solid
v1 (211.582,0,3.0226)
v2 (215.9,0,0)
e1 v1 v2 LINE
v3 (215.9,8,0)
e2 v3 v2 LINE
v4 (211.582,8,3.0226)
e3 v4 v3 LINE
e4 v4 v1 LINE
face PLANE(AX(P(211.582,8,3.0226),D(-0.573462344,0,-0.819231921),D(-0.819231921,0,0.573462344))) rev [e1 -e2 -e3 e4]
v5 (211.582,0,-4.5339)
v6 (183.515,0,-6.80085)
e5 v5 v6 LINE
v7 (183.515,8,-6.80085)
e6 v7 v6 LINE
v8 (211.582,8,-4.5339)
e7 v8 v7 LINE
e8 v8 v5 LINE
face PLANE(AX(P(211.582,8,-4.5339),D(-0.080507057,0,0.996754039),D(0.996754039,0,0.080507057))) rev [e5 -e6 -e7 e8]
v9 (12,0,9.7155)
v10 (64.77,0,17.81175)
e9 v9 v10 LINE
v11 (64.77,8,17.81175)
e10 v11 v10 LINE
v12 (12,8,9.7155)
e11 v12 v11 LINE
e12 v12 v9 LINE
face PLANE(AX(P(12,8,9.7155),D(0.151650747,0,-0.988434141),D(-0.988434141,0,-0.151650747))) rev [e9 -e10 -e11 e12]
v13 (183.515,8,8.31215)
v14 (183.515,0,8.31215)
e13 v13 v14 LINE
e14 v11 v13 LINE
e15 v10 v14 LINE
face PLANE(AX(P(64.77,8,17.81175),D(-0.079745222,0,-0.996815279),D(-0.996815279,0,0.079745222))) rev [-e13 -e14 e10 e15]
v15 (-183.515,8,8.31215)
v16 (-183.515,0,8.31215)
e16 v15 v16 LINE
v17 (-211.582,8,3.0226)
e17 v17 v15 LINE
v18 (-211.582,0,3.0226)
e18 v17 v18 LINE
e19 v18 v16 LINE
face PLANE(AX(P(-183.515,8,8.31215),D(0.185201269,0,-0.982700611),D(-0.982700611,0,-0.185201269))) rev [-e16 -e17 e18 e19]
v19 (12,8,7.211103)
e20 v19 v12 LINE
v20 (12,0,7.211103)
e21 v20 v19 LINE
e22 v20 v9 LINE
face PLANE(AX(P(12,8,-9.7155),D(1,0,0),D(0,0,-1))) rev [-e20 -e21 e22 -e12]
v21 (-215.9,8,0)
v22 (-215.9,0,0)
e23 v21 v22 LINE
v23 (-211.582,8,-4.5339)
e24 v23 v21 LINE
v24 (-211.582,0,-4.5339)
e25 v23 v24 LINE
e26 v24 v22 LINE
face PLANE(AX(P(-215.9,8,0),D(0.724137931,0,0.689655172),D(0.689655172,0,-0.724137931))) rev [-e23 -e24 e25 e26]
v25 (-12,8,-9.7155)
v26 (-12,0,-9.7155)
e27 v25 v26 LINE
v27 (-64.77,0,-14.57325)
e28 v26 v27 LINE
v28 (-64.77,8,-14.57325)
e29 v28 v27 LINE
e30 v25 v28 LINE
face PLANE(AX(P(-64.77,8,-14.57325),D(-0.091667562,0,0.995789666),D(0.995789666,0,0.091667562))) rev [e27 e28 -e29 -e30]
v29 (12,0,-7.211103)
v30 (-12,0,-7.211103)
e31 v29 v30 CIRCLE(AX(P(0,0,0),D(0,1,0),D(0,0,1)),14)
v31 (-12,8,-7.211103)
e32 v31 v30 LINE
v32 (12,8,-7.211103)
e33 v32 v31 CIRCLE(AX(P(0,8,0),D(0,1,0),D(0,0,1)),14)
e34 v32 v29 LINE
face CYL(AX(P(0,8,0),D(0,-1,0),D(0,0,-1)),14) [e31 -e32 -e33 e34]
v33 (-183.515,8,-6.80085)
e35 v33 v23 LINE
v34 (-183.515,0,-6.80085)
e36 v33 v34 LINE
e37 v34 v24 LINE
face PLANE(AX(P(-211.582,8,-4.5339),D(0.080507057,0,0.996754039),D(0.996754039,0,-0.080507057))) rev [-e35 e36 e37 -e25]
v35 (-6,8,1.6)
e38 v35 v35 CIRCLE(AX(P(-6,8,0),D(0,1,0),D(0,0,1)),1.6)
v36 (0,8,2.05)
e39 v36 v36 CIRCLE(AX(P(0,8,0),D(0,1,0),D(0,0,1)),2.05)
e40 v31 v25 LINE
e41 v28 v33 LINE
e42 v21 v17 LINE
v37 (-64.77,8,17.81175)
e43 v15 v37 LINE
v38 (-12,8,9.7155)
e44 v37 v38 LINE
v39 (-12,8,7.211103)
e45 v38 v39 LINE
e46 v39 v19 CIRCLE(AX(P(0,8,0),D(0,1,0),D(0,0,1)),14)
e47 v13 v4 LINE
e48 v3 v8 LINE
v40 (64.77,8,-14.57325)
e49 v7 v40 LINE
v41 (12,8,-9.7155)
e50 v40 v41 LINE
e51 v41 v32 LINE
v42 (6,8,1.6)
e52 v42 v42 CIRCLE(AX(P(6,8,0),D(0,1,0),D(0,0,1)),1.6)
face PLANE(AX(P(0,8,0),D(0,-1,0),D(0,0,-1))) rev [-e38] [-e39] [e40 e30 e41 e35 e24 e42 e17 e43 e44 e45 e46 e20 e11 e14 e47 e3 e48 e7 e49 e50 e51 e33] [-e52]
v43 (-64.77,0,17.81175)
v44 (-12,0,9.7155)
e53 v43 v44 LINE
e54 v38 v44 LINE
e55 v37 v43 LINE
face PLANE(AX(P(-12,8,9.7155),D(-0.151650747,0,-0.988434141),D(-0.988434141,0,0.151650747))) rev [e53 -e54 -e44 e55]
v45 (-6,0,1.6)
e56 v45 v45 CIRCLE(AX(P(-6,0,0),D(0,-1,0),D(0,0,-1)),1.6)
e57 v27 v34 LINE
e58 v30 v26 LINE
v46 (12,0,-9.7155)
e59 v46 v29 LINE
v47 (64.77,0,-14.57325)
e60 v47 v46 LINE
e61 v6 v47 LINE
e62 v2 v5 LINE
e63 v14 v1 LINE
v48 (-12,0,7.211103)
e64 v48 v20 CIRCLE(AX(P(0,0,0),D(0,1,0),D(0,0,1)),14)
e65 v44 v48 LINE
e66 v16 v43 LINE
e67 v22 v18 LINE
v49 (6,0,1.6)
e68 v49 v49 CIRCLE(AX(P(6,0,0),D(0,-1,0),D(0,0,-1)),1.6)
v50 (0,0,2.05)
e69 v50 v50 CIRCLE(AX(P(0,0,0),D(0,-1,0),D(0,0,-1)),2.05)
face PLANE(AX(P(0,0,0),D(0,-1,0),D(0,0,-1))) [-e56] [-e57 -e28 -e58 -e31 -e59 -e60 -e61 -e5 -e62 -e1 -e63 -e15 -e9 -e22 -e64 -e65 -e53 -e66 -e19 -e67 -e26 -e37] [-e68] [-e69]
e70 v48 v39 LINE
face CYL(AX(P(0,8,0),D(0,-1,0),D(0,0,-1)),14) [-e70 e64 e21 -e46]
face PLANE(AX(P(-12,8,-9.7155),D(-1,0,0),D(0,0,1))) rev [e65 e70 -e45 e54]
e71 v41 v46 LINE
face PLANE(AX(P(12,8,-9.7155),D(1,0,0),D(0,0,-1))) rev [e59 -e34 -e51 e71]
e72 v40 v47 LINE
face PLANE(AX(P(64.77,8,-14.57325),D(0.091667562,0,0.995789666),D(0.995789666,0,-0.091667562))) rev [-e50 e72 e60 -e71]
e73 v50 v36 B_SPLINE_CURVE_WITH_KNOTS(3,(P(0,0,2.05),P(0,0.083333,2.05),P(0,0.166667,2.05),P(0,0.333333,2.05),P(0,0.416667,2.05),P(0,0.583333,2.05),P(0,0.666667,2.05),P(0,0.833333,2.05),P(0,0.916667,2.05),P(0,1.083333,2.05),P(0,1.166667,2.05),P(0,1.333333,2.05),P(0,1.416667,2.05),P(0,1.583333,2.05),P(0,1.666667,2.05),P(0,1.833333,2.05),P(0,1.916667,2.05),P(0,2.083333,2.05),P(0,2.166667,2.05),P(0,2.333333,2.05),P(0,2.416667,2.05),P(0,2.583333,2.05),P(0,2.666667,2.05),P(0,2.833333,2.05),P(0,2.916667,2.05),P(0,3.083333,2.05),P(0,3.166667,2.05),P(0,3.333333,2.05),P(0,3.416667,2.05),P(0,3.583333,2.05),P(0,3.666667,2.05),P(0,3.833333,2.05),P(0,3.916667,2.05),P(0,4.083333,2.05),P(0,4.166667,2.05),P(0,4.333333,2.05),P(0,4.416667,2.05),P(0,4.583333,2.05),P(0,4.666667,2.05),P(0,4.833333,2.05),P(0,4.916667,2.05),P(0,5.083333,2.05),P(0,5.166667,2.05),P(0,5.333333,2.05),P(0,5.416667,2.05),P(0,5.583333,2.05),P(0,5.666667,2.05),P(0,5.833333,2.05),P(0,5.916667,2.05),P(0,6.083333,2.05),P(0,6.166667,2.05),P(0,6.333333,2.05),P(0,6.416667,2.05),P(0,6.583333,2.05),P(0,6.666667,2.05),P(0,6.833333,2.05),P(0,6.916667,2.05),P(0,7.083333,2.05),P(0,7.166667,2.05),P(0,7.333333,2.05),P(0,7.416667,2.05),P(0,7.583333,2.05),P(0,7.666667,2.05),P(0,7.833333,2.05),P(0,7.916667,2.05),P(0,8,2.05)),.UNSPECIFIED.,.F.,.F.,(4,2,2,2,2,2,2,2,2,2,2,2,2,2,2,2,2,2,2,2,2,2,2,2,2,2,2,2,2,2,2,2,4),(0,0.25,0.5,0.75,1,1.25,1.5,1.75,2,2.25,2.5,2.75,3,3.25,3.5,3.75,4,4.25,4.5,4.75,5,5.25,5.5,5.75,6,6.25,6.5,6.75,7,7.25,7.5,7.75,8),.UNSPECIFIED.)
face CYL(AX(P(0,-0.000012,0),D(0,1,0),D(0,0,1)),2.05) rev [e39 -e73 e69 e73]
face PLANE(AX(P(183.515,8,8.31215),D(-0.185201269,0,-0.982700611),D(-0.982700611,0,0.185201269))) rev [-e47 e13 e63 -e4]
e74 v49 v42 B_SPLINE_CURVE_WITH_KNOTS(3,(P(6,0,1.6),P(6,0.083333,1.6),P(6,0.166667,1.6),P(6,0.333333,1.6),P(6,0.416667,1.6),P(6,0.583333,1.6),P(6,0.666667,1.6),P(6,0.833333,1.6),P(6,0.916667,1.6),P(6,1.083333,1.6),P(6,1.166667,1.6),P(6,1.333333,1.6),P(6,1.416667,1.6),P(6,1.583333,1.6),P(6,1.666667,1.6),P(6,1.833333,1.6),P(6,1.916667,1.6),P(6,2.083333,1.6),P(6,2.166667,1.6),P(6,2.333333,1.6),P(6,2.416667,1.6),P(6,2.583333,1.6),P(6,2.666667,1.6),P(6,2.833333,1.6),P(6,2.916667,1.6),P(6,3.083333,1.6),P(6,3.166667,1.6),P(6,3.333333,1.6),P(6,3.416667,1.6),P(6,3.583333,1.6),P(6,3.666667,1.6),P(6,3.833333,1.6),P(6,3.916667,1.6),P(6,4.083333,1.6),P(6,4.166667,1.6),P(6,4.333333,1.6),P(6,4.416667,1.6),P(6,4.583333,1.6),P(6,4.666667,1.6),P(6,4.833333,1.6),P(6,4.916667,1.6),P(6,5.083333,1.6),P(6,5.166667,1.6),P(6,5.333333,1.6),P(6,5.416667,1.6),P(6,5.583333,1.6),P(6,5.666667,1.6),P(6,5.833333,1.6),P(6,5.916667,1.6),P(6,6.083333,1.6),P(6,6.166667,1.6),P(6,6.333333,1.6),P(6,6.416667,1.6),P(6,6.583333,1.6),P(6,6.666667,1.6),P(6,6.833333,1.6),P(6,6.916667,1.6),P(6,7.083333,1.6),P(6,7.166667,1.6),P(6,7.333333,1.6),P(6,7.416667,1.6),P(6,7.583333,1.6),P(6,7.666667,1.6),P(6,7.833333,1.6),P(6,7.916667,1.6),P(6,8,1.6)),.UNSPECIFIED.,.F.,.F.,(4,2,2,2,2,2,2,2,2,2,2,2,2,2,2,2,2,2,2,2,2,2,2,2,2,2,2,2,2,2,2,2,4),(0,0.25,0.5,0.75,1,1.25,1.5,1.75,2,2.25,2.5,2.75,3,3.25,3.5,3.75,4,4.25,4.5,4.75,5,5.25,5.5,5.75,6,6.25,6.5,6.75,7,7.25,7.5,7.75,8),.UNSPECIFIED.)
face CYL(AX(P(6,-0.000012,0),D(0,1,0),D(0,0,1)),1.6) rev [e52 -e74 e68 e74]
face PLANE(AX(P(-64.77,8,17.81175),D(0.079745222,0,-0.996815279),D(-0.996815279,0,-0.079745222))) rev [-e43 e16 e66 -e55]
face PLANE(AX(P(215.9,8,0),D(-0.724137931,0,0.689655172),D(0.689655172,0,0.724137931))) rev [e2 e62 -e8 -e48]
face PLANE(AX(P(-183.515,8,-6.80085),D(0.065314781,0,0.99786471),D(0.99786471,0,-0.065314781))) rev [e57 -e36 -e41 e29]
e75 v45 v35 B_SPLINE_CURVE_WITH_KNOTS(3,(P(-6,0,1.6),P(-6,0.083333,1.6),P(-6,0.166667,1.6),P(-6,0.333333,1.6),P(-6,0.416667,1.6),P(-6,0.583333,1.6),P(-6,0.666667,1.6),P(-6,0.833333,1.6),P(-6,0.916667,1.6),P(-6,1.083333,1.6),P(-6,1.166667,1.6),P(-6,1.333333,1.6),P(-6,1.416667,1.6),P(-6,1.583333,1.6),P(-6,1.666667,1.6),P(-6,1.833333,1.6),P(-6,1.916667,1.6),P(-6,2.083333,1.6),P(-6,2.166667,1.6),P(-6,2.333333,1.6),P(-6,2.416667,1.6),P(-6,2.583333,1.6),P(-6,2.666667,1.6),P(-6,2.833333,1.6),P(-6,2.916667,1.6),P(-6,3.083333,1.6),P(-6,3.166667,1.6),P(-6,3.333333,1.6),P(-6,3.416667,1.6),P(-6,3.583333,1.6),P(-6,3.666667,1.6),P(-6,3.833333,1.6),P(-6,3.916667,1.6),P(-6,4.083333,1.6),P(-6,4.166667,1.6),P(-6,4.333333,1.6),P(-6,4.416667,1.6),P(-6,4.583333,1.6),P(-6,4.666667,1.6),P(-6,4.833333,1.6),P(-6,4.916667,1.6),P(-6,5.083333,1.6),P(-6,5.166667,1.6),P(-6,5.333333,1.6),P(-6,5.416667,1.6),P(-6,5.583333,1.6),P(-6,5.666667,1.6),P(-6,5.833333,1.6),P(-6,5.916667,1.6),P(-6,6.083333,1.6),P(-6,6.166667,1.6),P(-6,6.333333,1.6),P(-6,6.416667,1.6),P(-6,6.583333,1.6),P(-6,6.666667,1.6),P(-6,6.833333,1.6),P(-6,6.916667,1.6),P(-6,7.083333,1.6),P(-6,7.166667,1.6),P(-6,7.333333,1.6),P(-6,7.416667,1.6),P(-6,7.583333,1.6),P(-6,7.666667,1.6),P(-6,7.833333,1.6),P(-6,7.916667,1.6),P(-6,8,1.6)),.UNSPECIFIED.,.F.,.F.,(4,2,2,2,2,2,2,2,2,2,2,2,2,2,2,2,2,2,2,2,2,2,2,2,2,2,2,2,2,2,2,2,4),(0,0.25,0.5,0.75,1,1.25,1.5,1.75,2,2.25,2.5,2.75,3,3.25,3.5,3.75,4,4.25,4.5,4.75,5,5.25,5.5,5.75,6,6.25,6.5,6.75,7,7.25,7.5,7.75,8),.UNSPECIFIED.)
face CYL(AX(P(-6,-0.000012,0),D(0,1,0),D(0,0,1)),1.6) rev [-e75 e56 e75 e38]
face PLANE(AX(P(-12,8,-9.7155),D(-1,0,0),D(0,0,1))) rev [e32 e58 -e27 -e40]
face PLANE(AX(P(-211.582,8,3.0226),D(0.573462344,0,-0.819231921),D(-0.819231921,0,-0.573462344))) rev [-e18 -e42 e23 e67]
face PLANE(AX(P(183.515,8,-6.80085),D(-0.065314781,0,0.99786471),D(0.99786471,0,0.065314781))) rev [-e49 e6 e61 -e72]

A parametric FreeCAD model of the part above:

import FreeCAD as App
import Part
import Sketcher
from FreeCAD import Vector

doc = App.newDocument("Part")
body = doc.addObject("PartDesign::Body", "Body")

sketch1 = body.newObject("Sketcher::SketchObject", "Sketch")
sketch1.AttachmentSupport = (doc.getObject("XZ_Plane"), [""])
sketch1.MapMode = "FlatFace"
sketch1.addGeometry([
    Part.LineSegment(Vector(12, 10, 0), Vector(65, 18, 0)),
    Part.LineSegment(Vector(65, 18, 0), Vector(184, 8, 0)),
    Part.LineSegment(Vector(184, 8, 0), Vector(212, 3, 0)),
    Part.LineSegment(Vector(212, 3, 0), Vector(216, 0, 0)),
    Part.LineSegment(Vector(216, 0, 0), Vector(212, -5, 0)),
    Part.LineSegment(Vector(212, -5, 0), Vector(184, -7, 0)),
    Part.LineSegment(Vector(184, -7, 0), Vector(65, -15, 0)),
    Part.LineSegment(Vector(65, -15, 0), Vector(12, -10, 0)),
    Part.LineSegment(Vector(12, -10, 0), Vector(12, 10, 0)),
], False)
sketch1.addConstraint([
    Sketcher.Constraint("Coincident", 0, 2, 1, 1),
    Sketcher.Constraint("Coincident", 1, 2, 2, 1),
    Sketcher.Constraint("Coincident", 2, 2, 3, 1),
    Sketcher.Constraint("Coincident", 3, 2, 4, 1),
    Sketcher.Constraint("Coincident", 4, 2, 5, 1),
    Sketcher.Constraint("Coincident", 5, 2, 6, 1),
    Sketcher.Constraint("Coincident", 6, 2, 7, 1),
    Sketcher.Constraint("Coincident", 7, 2, 8, 1),
    Sketcher.Constraint("Coincident", 8, 2, 0, 1),
    Sketcher.Constraint("Vertical", 8),
    Sketcher.Constraint("PointOnObject", 3, 2, -1),
    Sketcher.Constraint("Vertical", 2, 2, 4, 2),
    Sketcher.Constraint("Vertical", 1, 2, 5, 2),
    Sketcher.Constraint("Vertical", 0, 2, 6, 2),
    Sketcher.Constraint("DistanceX", -1, 1, 7, 2, 12.0),
    Sketcher.Constraint("DistanceX", -1, 1, 3, 2, 215.9),
    Sketcher.Constraint("DistanceY", 8, 1, 8, 2, 19.431),
    Sketcher.Constraint("DistanceX", -1, 1, 0, 2, 64.77),
    Sketcher.Constraint("DistanceX", -1, 1, 1, 2, 183.515),
    Sketcher.Constraint("DistanceX", -1, 1, 2, 2, 211.582),
    Sketcher.Constraint("DistanceY", 5, 2, 1, 2, 15.113),
    Sketcher.Constraint("DistanceY", 6, 2, 0, 2, 32.385),
    Sketcher.Constraint("Distance", 4, 6.2611),
    Sketcher.Constraint("Distance", 5, 28.158401),
    Sketcher.Constraint("DistanceY", -1, 1, 2, 2, 3.0226),
    Sketcher.Constraint("DistanceY", 7, 2, -1, 1, 9.7155),
    Sketcher.Constraint("DistanceY", 1, 2, 0, 2, 9.4996),
])
pad1 = body.newObject("PartDesign::Pad", "Pad")
pad1.Profile = sketch1
pad1.Length = 8
pad1.Reversed = True
body2 = doc.addObject("PartDesign::Body", "Body001")

sketch2 = body2.newObject("Sketcher::SketchObject", "Sketch001")
sketch2.AttachmentSupport = (doc.getObject("XZ_Plane001"), [""])
sketch2.MapMode = "FlatFace"
sketch2.addGeometry([
    Part.LineSegment(Vector(-65, 18, 0), Vector(-12, 10, 0)),
    Part.LineSegment(Vector(-12, 10, 0), Vector(-12, -10, 0)),
    Part.LineSegment(Vector(-12, -10, 0), Vector(-65, -15, 0)),
    Part.LineSegment(Vector(-65, -15, 0), Vector(-184, -7, 0)),
    Part.LineSegment(Vector(-184, -7, 0), Vector(-212, -5, 0)),
    Part.LineSegment(Vector(-212, -5, 0), Vector(-216, 0, 0)),
    Part.LineSegment(Vector(-216, 0, 0), Vector(-212, 3, 0)),
    Part.LineSegment(Vector(-212, 3, 0), Vector(-184, 8, 0)),
    Part.LineSegment(Vector(-184, 8, 0), Vector(-65, 18, 0)),
], False)
sketch2.addConstraint([
    Sketcher.Constraint("Coincident", 0, 2, 1, 1),
    Sketcher.Constraint("Coincident", 1, 2, 2, 1),
    Sketcher.Constraint("Coincident", 2, 2, 3, 1),
    Sketcher.Constraint("Coincident", 3, 2, 4, 1),
    Sketcher.Constraint("Coincident", 4, 2, 5, 1),
    Sketcher.Constraint("Coincident", 5, 2, 6, 1),
    Sketcher.Constraint("Coincident", 6, 2, 7, 1),
    Sketcher.Constraint("Coincident", 7, 2, 8, 1),
    Sketcher.Constraint("Coincident", 8, 2, 0, 1),
    Sketcher.Constraint("Vertical", 1),
    Sketcher.Constraint("PointOnObject", 5, 2, -1),
    Sketcher.Constraint("Vertical", 4, 2, 6, 2),
    Sketcher.Constraint("Vertical", 3, 2, 7, 2),
    Sketcher.Constraint("Vertical", 2, 2, 8, 2),
    Sketcher.Constraint("DistanceX", 0, 2, -1, 1, 12.0),
    Sketcher.Constraint("DistanceX", 5, 2, -1, 1, 215.9),
    Sketcher.Constraint("DistanceY", 1, 2, 1, 1, 19.431),
    Sketcher.Constraint("DistanceX", 2, 2, -1, 1, 64.77),
    Sketcher.Constraint("DistanceX", 3, 2, -1, 1, 183.515),
    Sketcher.Constraint("DistanceX", 4, 2, -1, 1, 211.582),
    Sketcher.Constraint("DistanceY", 3, 2, 7, 2, 15.113),
    Sketcher.Constraint("DistanceY", 2, 2, 8, 2, 32.385),
    Sketcher.Constraint("Distance", 4, 28.158401),
    Sketcher.Constraint("Distance", 5, 6.2611),
    Sketcher.Constraint("DistanceY", -1, 1, 0, 2, 9.7155),
    Sketcher.Constraint("DistanceY", -1, 1, 6, 2, 3.0226),
    Sketcher.Constraint("DistanceY", 2, 2, 3, 2, 7.7724),
])
pad2 = body2.newObject("PartDesign::Pad", "Pad001")
pad2.Profile = sketch2
pad2.Length = 8
pad2.Reversed = True
body.AllowCompound = True
doc.recompute()

boolean = body.newObject("PartDesign::Boolean", "Boolean")
boolean.Type = "Fuse"
boolean.addObjects([body2])

sketch3 = body.newObject("Sketcher::SketchObject", "Sketch002")
sketch3.AttachmentSupport = (doc.getObject("XZ_Plane"), [""])
sketch3.MapMode = "FlatFace"
sketch3.addGeometry(Part.Circle(Vector(0, 0, 0), Vector(0, 0, 1), 14), False)
sketch3.addConstraint([
    Sketcher.Constraint("Coincident", 0, 3, -1, 1),
    Sketcher.Constraint("Diameter", 0, 28.0),
])
pad3 = body.newObject("PartDesign::Pad", "Pad002")
pad3.Profile = sketch3
pad3.Length = 8
pad3.Reversed = True

sketch4 = body.newObject("Sketcher::SketchObject", "Sketch003")
sketch4.AttachmentSupport = (doc.getObject("XZ_Plane"), [""])
sketch4.MapMode = "FlatFace"
sketch4.addGeometry([
    Part.Circle(Vector(0, 0, 0), Vector(0, 0, 1), 2),
    Part.Circle(Vector(6, 0, 0), Vector(0, 0, 1), 1.6),
    Part.Circle(Vector(-6, 0, 0), Vector(0, 0, 1), 1.6),
], False)
sketch4.addConstraint([
    Sketcher.Constraint("Coincident", 0, 3, -1, 1),
    Sketcher.Constraint("Equal", 1, 2),
    Sketcher.Constraint("Symmetric", 1, 3, 2, 3, -1, 1),
    Sketcher.Constraint("PointOnObject", 1, 3, -1),
    Sketcher.Constraint("Diameter", 0, 4.1),
    Sketcher.Constraint("Diameter", 1, 3.2),
    Sketcher.Constraint("DistanceX", -1, 1, 1, 3, 6.0),
])
pocket1 = body.newObject("PartDesign::Pocket", "Pocket")
pocket1.Profile = sketch4
pocket1.Type = "ThroughAll"
pocket1.Midplane = True

doc.recompute()
